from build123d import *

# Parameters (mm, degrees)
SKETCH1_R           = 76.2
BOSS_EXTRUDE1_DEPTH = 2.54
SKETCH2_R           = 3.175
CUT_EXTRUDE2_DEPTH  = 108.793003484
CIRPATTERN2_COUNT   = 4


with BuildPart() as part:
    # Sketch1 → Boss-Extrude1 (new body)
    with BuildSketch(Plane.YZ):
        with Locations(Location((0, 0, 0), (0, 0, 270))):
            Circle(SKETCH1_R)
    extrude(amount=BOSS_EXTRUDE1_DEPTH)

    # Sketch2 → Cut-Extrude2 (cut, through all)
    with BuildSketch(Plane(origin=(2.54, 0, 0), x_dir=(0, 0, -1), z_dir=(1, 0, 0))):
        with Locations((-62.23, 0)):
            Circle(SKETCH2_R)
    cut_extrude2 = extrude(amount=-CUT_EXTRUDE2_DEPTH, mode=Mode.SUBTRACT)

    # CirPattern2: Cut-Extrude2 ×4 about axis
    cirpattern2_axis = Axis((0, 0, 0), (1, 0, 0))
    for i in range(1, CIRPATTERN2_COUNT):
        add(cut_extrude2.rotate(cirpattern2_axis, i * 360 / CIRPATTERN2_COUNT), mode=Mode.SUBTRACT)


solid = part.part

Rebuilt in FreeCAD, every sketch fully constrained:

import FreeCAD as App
import Part
import Sketcher
Q = App.Units.Quantity

doc = App.newDocument("Part")
params = doc.addObject("Spreadsheet::Sheet", "Params")
for row, (alias, value) in enumerate([
    ("sketch1_diameter", "6 in"),
    ("pad1_length", "0.1 in"),
    ("sketch2_diameter", "0.25 in"),
], start=1):
    params.set(f"A{row}", alias)
    params.set(f"B{row}", "=" + value)
    params.setAlias(f"B{row}", alias)

body = doc.addObject("PartDesign::Body", "Body")

# Sketch on YZ plane
sketch1 = body.newObject("Sketcher::SketchObject", "Sketch")
sketch1.AttachmentSupport = (doc.getObject("YZ_Plane"), [""])
sketch1.MapMode = "FlatFace"
sketch1.addGeometry(Part.Circle(App.Vector(0, 0, 0), App.Vector(0, 0, 1), 76), False)
sketch1.addConstraint([
    Sketcher.Constraint("Coincident", 0, 3, -1, 1),
    Sketcher.Constraint("Diameter", 0, Q("6 in")),
])
sketch1.setExpression("Constraints[1]", "Params.sketch1_diameter")
pad1 = body.newObject("PartDesign::Pad", "Pad")
pad1.Profile = sketch1
pad1.setExpression("Length", "Params.pad1_length")

# Sketch on YZ plane
sketch2 = body.newObject("Sketcher::SketchObject", "Sketch001")
sketch2.AttachmentSupport = (doc.getObject("YZ_Plane"), [""])
sketch2.MapMode = "FlatFace"
sketch2.AttachmentOffset = App.Placement(App.Vector(0, 0, 0.1 * 25.4), App.Rotation())
sketch2.addGeometry(Part.Circle(App.Vector(0, 62.2, 0), App.Vector(0, 0, 1), 3.2), False)
sketch2.addConstraint([
    Sketcher.Constraint("PointOnObject", 0, 3, -2),
    Sketcher.Constraint("Diameter", 0, Q("0.25 in")),
    Sketcher.Constraint("DistanceY", -1, 1, 0, 3, Q("2.45 in")),
])
sketch2.setExpression("Constraints[1]", "Params.sketch2_diameter")
pocket1 = body.newObject("PartDesign::Pocket", "Pocket")
pocket1.Profile = sketch2
pocket1.Type = "ThroughAll"
doc.recompute()

polarpattern = body.newObject("PartDesign::PolarPattern", "PolarPattern")
polarpattern.Originals = [pocket1]
polarpattern.Axis = (doc.getObject("X_Axis"), [""])
polarpattern.Angle = 360
polarpattern.Occurrences = 4
body.Tip = polarpattern

doc.recompute()
